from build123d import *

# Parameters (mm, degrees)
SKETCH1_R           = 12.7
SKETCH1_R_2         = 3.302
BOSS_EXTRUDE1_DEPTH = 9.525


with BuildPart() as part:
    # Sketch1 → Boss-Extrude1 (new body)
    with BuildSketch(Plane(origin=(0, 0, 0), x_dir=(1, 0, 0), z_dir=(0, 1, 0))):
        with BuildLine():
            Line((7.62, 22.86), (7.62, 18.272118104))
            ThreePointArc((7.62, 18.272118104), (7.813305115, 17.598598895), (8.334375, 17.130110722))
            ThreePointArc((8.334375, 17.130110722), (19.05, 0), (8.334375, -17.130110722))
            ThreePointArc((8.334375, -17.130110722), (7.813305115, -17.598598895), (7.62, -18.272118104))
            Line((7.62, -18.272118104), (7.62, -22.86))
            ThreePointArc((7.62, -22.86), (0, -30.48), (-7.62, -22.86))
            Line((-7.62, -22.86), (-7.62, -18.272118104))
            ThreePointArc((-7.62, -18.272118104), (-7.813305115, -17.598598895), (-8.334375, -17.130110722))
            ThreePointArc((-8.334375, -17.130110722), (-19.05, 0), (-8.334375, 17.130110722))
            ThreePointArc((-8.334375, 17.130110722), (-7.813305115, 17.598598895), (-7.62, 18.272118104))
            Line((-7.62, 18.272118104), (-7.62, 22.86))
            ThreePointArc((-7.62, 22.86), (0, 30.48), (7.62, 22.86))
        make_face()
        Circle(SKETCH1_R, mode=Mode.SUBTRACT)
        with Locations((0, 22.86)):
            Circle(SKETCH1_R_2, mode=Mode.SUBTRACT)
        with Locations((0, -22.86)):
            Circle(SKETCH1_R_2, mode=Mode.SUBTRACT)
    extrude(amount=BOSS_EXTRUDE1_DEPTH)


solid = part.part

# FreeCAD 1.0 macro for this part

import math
import FreeCAD as App
import Part
import Sketcher
from FreeCAD import Vector
Q = App.Units.Quantity

doc = App.newDocument("Part")
body = doc.addObject("PartDesign::Body", "Body")

sketch1 = doc.addObject("Sketcher::SketchObject", "Sketch")
body.addObject(sketch1)
sketch1.AttachmentSupport = (doc.XZ_Plane, [""])
sketch1.MapMode = "FlatFace"
sketch1.addGeometry([
    Part.LineSegment(Vector(7.62, -18.272118, 0), Vector(7.62, -22.86, 0)),
    Part.ArcOfCircle(Part.Circle(Vector(0, -22.86, 0), Vector(0, 0, 1), 7.62), math.radians(180), math.radians(360)),
    Part.LineSegment(Vector(-7.62, -22.86, 0), Vector(-7.62, -18.272118, 0)),
    Part.ArcOfCircle(Part.Circle(Vector(-8.89, -18.272118, 0), Vector(0, 0, 1), 1.27), math.radians(0), math.radians(64.05552)),
    Part.ArcOfCircle(Part.Circle(Vector(0, 0, 0), Vector(0, 0, 1), 19.05), math.radians(115.94448), math.radians(244.05552)),
    Part.ArcOfCircle(Part.Circle(Vector(-8.89, 18.272118, 0), Vector(0, 0, 1), 1.27), math.radians(-64.05552), math.radians(0)),
    Part.LineSegment(Vector(-7.62, 18.272118, 0), Vector(-7.62, 22.86, 0)),
    Part.ArcOfCircle(Part.Circle(Vector(0, 22.86, 0), Vector(0, 0, 1), 7.62), math.radians(0), math.radians(180)),
    Part.LineSegment(Vector(7.62, 22.86, 0), Vector(7.62, 18.272118, 0)),
    Part.ArcOfCircle(Part.Circle(Vector(8.89, 18.272118, 0), Vector(0, 0, 1), 1.27), math.radians(180), math.radians(244.05552)),
    Part.ArcOfCircle(Part.Circle(Vector(0, 0, 0), Vector(0, 0, 1), 19.05), math.radians(-64.05552), math.radians(64.05552)),
    Part.ArcOfCircle(Part.Circle(Vector(8.89, -18.272118, 0), Vector(0, 0, 1), 1.27), math.radians(115.94448), math.radians(180)),
    Part.Circle(Vector(0, 22.86, 0), Vector(0, 0, 1), 3.302),
    Part.Circle(Vector(0, 0, 0), Vector(0, 0, 1), 12.7),
    Part.Circle(Vector(0, -22.86, 0), Vector(0, 0, 1), 3.302),
], False)
sketch1.addConstraint([
    Sketcher.Constraint("Tangent", 0, 2, 1, 2),
    Sketcher.Constraint("Tangent", 1, 1, 2, 1),
    Sketcher.Constraint("Tangent", 2, 2, 3, 1),
    Sketcher.Constraint("Tangent", 3, 2, 4, 2),
    Sketcher.Constraint("Tangent", 4, 1, 5, 1),
    Sketcher.Constraint("Tangent", 5, 2, 6, 1),
    Sketcher.Constraint("Tangent", 6, 2, 7, 2),
    Sketcher.Constraint("Tangent", 7, 1, 8, 1),
    Sketcher.Constraint("Tangent", 8, 2, 9, 1),
    Sketcher.Constraint("Tangent", 9, 2, 10, 2),
    Sketcher.Constraint("Tangent", 10, 1, 11, 1),
    Sketcher.Constraint("Tangent", 11, 2, 0, 1),
    Sketcher.Constraint("Vertical", 0),
    Sketcher.Constraint("Vertical", 2),
    Sketcher.Constraint("Vertical", 6),
    Sketcher.Constraint("Vertical", 8),
    Sketcher.Constraint("Coincident", 4, 3, -1, 1),
    Sketcher.Constraint("Coincident", 10, 3, -1, 1),
    Sketcher.Constraint("Coincident", 13, 3, -1, 1),
    Sketcher.Constraint("Coincident", 12, 3, 7, 3),
    Sketcher.Constraint("Coincident", 14, 3, 1, 3),
    Sketcher.Constraint("Equal", 3, 5),
    Sketcher.Constraint("Equal", 1, 7),
    Sketcher.Constraint("Equal", 5, 9),
    Sketcher.Constraint("Equal", 4, 10),
    Sketcher.Constraint("Equal", 9, 11),
    Sketcher.Constraint("Equal", 12, 14),
    Sketcher.Constraint("Symmetric", 1, 3, 7, 3, -1, 1),
    Sketcher.Constraint("PointOnObject", 1, 3, -2),
    Sketcher.Constraint("Diameter", 13, Q("1 in")),
    Sketcher.Constraint("Radius", 1, Q("0.3 in")),
    Sketcher.Constraint("Diameter", 12, Q("0.26 in")),
    Sketcher.Constraint("Radius", 3, Q("0.05 in")),
    Sketcher.Constraint("Radius", 4, Q("0.75 in")),
    Sketcher.Constraint("DistanceY", 1, 3, -1, 1, Q("0.9 in")),
])
pad1 = doc.addObject("PartDesign::Pad", "Pad")
body.addObject(pad1)
pad1.Profile = sketch1
pad1.Length = Q("0.375 in")
pad1.Reversed = True

doc.recompute()
